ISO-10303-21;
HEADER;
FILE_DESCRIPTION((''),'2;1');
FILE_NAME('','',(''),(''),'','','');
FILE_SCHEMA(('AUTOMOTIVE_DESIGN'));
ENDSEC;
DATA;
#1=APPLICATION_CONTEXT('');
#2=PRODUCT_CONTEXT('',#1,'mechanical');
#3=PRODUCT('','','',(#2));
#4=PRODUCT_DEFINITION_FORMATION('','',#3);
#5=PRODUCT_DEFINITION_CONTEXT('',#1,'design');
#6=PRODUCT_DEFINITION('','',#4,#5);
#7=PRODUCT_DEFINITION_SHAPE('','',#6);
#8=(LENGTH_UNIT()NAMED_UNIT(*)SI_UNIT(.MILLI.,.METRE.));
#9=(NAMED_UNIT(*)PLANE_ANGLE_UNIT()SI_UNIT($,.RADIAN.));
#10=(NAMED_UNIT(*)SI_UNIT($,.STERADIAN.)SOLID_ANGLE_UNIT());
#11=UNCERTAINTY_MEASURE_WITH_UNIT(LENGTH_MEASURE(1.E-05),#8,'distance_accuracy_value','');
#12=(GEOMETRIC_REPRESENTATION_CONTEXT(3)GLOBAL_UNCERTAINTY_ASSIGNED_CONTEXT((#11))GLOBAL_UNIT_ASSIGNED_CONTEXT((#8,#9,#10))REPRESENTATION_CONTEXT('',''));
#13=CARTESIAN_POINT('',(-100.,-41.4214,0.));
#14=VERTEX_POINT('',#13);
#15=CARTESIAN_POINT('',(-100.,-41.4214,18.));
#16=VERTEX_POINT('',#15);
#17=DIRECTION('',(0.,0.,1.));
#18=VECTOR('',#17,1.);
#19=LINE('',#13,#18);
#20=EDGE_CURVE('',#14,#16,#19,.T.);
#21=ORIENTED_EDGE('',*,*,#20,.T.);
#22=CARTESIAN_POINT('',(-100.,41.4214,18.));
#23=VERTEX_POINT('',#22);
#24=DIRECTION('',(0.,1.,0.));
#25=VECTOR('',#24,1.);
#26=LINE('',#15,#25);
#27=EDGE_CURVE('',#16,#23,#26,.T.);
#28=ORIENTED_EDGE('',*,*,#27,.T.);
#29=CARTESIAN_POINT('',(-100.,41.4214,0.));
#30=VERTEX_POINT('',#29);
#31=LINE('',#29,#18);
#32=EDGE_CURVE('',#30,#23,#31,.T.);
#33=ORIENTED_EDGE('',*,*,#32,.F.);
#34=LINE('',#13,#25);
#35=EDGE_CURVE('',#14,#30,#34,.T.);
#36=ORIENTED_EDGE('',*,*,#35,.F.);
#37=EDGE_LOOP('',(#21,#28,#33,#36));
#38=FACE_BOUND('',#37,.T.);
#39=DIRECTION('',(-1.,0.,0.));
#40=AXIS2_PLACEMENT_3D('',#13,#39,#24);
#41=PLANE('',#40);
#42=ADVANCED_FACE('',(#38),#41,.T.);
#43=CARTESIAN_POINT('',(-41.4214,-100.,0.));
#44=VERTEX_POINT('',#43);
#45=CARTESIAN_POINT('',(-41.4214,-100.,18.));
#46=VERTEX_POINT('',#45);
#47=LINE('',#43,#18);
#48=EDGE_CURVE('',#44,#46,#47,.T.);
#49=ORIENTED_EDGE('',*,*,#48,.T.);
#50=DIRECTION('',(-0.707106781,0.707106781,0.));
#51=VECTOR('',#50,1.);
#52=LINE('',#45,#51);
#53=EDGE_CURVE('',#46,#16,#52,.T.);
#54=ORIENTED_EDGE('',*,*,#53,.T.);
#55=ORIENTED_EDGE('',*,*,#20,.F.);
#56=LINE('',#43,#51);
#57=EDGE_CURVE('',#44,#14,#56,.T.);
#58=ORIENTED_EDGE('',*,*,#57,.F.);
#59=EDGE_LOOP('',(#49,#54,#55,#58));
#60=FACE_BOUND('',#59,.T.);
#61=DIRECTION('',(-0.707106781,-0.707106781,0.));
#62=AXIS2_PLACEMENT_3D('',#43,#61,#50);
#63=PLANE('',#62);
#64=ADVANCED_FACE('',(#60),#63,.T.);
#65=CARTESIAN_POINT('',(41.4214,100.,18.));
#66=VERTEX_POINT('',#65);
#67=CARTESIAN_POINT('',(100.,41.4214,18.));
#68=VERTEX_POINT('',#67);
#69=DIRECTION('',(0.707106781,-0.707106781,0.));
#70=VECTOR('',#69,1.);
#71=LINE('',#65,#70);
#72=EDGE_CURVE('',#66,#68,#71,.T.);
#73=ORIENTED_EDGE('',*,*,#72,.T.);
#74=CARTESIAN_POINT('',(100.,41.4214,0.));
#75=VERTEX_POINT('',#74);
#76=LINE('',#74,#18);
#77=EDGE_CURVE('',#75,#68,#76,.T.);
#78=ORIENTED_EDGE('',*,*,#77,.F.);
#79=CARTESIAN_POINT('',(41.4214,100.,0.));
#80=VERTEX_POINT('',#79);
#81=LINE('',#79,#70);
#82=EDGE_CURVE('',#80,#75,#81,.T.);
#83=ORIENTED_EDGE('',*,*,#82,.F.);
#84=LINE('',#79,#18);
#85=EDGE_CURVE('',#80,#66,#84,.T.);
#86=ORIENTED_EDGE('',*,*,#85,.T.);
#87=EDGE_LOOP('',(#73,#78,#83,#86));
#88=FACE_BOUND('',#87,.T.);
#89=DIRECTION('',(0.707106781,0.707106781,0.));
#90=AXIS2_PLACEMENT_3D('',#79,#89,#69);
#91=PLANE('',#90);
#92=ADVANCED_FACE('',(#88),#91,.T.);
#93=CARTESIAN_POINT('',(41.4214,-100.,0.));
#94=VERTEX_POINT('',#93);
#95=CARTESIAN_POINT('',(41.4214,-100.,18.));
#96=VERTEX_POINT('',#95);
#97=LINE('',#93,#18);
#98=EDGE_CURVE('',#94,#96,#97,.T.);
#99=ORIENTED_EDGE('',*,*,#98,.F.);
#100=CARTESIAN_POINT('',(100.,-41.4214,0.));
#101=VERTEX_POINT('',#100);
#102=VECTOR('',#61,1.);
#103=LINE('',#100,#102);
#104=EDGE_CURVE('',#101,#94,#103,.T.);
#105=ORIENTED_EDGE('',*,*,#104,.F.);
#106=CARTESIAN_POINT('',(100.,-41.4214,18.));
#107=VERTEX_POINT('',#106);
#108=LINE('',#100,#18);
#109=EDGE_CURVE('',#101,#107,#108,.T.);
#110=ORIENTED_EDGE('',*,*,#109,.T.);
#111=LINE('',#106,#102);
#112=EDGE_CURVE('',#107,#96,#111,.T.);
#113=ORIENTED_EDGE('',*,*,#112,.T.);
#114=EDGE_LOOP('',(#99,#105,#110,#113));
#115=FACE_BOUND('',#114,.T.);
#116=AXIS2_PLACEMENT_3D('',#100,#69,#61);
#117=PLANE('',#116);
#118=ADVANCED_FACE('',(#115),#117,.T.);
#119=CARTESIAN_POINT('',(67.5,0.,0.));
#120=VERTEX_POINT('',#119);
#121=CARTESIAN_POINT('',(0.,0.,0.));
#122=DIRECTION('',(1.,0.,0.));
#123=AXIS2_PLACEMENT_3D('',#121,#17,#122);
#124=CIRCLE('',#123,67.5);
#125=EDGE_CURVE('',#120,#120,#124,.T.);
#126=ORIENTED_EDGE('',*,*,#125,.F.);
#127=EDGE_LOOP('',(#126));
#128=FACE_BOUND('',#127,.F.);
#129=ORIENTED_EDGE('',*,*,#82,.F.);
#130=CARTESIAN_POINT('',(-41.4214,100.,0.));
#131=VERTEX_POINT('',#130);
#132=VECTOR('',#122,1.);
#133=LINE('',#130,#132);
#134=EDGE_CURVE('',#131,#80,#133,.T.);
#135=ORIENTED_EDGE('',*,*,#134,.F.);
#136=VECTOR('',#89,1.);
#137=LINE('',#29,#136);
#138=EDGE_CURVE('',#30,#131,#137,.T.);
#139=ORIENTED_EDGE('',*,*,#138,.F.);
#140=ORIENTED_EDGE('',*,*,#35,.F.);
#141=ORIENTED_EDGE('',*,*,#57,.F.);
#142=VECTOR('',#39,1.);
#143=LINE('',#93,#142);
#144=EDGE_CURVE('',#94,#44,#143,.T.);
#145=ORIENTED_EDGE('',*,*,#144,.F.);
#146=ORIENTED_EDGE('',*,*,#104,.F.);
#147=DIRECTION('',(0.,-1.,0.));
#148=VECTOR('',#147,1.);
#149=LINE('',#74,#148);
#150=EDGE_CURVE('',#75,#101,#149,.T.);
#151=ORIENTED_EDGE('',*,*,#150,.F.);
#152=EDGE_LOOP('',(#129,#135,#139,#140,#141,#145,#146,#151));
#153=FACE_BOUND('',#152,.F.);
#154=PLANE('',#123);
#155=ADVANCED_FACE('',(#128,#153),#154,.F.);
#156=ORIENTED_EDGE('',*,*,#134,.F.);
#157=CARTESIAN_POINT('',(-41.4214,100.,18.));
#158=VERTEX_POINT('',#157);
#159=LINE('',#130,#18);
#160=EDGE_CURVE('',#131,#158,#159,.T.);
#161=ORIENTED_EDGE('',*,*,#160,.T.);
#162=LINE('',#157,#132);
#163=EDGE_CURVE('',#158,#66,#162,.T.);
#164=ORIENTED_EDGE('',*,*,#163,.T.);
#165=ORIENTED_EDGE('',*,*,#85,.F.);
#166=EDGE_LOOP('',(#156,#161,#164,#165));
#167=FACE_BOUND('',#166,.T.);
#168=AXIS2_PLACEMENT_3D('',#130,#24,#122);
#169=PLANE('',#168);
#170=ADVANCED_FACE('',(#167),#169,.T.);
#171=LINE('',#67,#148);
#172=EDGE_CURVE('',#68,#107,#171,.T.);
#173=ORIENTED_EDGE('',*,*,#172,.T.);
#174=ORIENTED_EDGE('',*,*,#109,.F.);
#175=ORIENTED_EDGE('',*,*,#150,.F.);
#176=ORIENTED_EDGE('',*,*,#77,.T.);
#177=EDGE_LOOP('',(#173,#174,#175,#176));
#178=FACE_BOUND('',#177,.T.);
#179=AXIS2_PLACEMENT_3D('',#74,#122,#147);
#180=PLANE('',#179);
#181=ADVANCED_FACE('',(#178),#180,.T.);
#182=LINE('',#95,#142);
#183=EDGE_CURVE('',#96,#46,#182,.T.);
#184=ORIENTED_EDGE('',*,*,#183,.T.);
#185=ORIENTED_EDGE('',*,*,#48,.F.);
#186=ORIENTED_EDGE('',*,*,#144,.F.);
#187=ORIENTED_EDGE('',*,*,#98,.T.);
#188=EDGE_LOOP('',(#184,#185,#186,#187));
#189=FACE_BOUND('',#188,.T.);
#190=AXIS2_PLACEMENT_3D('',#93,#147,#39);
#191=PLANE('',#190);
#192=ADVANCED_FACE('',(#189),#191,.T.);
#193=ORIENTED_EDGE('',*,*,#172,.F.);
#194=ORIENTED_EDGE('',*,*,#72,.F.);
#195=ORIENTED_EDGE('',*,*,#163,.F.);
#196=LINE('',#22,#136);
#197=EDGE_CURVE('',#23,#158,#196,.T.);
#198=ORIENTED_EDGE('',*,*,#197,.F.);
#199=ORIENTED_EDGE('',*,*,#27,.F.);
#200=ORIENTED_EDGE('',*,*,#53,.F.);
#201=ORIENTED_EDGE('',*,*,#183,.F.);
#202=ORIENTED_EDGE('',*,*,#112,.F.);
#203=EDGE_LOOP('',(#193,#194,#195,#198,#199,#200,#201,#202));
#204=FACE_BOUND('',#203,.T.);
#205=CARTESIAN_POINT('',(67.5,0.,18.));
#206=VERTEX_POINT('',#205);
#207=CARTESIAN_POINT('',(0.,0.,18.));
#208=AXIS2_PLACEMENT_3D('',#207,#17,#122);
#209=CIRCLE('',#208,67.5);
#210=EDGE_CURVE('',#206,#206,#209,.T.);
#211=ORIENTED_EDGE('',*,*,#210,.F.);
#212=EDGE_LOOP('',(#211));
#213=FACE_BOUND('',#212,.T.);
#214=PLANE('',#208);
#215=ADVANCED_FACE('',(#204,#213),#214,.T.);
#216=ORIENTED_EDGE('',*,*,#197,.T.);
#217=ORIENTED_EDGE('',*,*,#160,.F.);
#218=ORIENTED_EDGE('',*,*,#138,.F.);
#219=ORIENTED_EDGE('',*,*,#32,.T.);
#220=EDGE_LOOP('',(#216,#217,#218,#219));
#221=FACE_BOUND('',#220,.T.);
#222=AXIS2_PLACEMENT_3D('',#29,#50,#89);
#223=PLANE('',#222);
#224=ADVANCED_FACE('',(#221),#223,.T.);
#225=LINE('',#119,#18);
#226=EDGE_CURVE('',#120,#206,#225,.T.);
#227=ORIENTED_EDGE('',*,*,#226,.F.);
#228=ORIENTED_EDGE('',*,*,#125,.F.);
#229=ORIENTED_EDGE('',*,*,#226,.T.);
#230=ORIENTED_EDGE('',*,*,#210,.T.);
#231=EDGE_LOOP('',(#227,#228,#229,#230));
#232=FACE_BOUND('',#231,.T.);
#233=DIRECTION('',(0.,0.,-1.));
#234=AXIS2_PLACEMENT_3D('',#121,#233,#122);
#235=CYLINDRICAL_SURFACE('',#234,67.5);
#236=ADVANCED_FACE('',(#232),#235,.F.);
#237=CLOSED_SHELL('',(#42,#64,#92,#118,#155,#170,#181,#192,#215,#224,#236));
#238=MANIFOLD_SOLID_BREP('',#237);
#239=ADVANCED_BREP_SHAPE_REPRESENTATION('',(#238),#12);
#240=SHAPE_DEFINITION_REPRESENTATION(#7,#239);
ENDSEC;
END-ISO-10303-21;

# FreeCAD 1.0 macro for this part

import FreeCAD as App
import Part
import Sketcher
Q = App.Units.Quantity

doc = App.newDocument("Part")
body = doc.addObject("PartDesign::Body", "Body")

# Sketch on XY plane
sketch1 = body.newObject("Sketcher::SketchObject", "Sketch")
sketch1.AttachmentSupport = (doc.getObject("XY_Plane"), [""])
sketch1.MapMode = "FlatFace"
sketch1.addGeometry([
    Part.LineSegment(App.Vector(41, 100, 0), App.Vector(-41, 100, 0)),  # 0
    Part.LineSegment(App.Vector(-41, 100, 0), App.Vector(-100, 41, 0)),  # 1
    Part.LineSegment(App.Vector(-100, 41, 0), App.Vector(-100, -41, 0)),  # 2
    Part.LineSegment(App.Vector(-100, -41, 0), App.Vector(-41, -100, 0)),  # 3
    Part.LineSegment(App.Vector(-41, -100, 0), App.Vector(41, -100, 0)),  # 4
    Part.LineSegment(App.Vector(41, -100, 0), App.Vector(100, -41, 0)),  # 5
    Part.LineSegment(App.Vector(100, -41, 0), App.Vector(100, 41, 0)),  # 6
    Part.LineSegment(App.Vector(100, 41, 0), App.Vector(41, 100, 0)),  # 7
    Part.Circle(App.Vector(0, 0, 0), App.Vector(0, 0, 1), 68),  # 8
], False)
sketch1.addConstraint([
    Sketcher.Constraint("Coincident", 0, 2, 1, 1),
    Sketcher.Constraint("Coincident", 1, 2, 2, 1),
    Sketcher.Constraint("Coincident", 2, 2, 3, 1),
    Sketcher.Constraint("Coincident", 3, 2, 4, 1),
    Sketcher.Constraint("Coincident", 4, 2, 5, 1),
    Sketcher.Constraint("Coincident", 5, 2, 6, 1),
    Sketcher.Constraint("Coincident", 6, 2, 7, 1),
    Sketcher.Constraint("Coincident", 7, 2, 0, 1),
    Sketcher.Constraint("Horizontal", 0),
    Sketcher.Constraint("Vertical", 2),
    Sketcher.Constraint("Horizontal", 4),
    Sketcher.Constraint("Vertical", 6),
    Sketcher.Constraint("Coincident", 8, 3, -1, 1),
    Sketcher.Constraint("Symmetric", 0, 2, 4, 2, -1, 1),
    Sketcher.Constraint("Symmetric", 1, 2, 5, 2, -1, 1),
    Sketcher.Constraint("Perpendicular", 1, 3),
    Sketcher.Constraint("Perpendicular", 5, 7),
    Sketcher.Constraint("Horizontal", 2, 2, 5, 2),
    Sketcher.Constraint("Horizontal", 1, 2, 6, 2),
    Sketcher.Constraint("Vertical", 0, 2, 3, 2),
    Sketcher.Constraint("Equal", 4, 2),
    Sketcher.Constraint("Diameter", 8, Q("135 mm")),
    Sketcher.Constraint("DistanceY", 3, 2, 0, 2, Q("200 mm")),
    Sketcher.Constraint("DistanceX", 0, 2, 0, 1, Q("82.8428 mm")),
])
pad1 = body.newObject("PartDesign::Pad", "Pad")
pad1.Profile = sketch1
pad1.Length = 18

doc.recompute()
